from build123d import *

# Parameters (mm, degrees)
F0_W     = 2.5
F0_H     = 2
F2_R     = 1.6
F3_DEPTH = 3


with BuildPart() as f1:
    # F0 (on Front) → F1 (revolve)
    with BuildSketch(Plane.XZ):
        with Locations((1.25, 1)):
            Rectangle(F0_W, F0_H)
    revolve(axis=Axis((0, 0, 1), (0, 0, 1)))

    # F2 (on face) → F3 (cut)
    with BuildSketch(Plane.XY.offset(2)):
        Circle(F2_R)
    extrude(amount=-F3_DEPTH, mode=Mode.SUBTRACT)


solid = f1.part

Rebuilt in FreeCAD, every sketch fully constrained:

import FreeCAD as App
import Part
import Sketcher

V = App.Vector
Q = App.Units.Quantity

doc = App.newDocument("Part")
params = doc.addObject("Spreadsheet::Sheet", "Params")
for row, (alias, value) in enumerate([
    ("sketch1_height", "2 mm"),
    ("sketch1_width", "2.5 mm"),
    ("revolution_angle", "360 deg"),
    ("sketch2_diameter", "3.2 mm"),
    ("pocket1_length", "3 mm"),
], start=1):
    params.set(f"A{row}", alias)
    params.set(f"B{row}", "=" + value)
    params.setAlias(f"B{row}", alias)

body = doc.addObject("PartDesign::Body", "Body")

# Sketch on XZ plane
sketch1 = body.newObject("Sketcher::SketchObject", "Sketch")
sketch1.AttachmentSupport = (doc.getObject("XZ_Plane"), [""])
sketch1.MapMode = "FlatFace"
sketch1.addGeometry(Part.LineSegment(V(0, 2, 0), V(0, 0, 0)), False)
sketch1.addGeometry(Part.LineSegment(V(0, 0, 0), V(2.5, 0, 0)), False)
sketch1.addGeometry(Part.LineSegment(V(2.5, 0, 0), V(2.5, 2, 0)), False)
sketch1.addGeometry(Part.LineSegment(V(2.5, 2, 0), V(0, 2, 0)), False)
sketch1.addConstraint(Sketcher.Constraint("Coincident", 0, 2, 1, 1))
sketch1.addConstraint(Sketcher.Constraint("Coincident", 1, 2, 2, 1))
sketch1.addConstraint(Sketcher.Constraint("Coincident", 2, 2, 3, 1))
sketch1.addConstraint(Sketcher.Constraint("Coincident", 3, 2, 0, 1))
sketch1.addConstraint(Sketcher.Constraint("Vertical", 0))
sketch1.addConstraint(Sketcher.Constraint("Horizontal", 1))
sketch1.addConstraint(Sketcher.Constraint("Vertical", 2))
sketch1.addConstraint(Sketcher.Constraint("Horizontal", 3))
sketch1.addConstraint(Sketcher.Constraint("Coincident", 0, 2, -1, 1))
sketch1.addConstraint(Sketcher.Constraint("DistanceY", 0, 2, 0, 1, Q("2 mm")))
sketch1.addConstraint(Sketcher.Constraint("DistanceX", 1, 1, 1, 2, Q("2.5 mm")))
sketch1.setExpression("Constraints[9]", "Params.sketch1_height")
sketch1.setExpression("Constraints[10]", "Params.sketch1_width")
revolution = body.newObject("PartDesign::Revolution", "Revolution")
revolution.Profile = sketch1
revolution.ReferenceAxis = (sketch1, ["V_Axis"])
revolution.setExpression("Angle", "Params.revolution_angle")

# Sketch on XY plane
sketch2 = body.newObject("Sketcher::SketchObject", "Sketch001")
sketch2.AttachmentSupport = (doc.getObject("XY_Plane"), [""])
sketch2.MapMode = "FlatFace"
sketch2.AttachmentOffset = App.Placement(V(0, 0, 2), App.Rotation())
sketch2.addGeometry(Part.Circle(V(0, 0, 0), V(0, 0, 1), 1.6), False)
sketch2.addConstraint(Sketcher.Constraint("Coincident", 0, 3, -1, 1))
sketch2.addConstraint(Sketcher.Constraint("Diameter", 0, Q("3.2 mm")))
sketch2.setExpression("Constraints[1]", "Params.sketch2_diameter")
pocket1 = body.newObject("PartDesign::Pocket", "Pocket")
pocket1.Profile = sketch2
pocket1.setExpression("Length", "Params.pocket1_length")

doc.recompute()
